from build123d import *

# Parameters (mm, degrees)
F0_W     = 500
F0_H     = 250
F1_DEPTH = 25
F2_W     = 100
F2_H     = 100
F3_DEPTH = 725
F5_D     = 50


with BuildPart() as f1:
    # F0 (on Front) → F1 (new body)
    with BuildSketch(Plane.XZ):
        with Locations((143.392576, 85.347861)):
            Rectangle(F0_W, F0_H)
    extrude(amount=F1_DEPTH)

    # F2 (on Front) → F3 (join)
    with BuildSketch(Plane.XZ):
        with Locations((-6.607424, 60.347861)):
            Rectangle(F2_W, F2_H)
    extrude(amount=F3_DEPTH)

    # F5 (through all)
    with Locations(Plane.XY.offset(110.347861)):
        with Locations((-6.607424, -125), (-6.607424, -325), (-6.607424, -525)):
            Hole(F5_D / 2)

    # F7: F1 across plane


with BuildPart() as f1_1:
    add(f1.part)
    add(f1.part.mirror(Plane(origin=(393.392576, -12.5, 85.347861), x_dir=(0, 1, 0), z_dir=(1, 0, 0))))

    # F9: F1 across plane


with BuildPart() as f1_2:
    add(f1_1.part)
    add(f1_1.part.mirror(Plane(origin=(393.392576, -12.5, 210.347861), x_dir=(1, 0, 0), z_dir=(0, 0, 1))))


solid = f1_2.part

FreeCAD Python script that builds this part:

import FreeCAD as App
import Part
import Sketcher
from FreeCAD import Vector
Q = App.Units.Quantity

doc = App.newDocument("Part")
body = doc.addObject("PartDesign::Body", "Body")

sketch1 = doc.addObject("Sketcher::SketchObject", "Sketch")
body.addObject(sketch1)
sketch1.AttachmentSupport = (doc.XZ_Plane, [""])
sketch1.MapMode = "FlatFace"
sketch1.addGeometry([
    Part.LineSegment(Vector(-107, 210, 0), Vector(-107, -40, 0)),
    Part.LineSegment(Vector(-107, -40, 0), Vector(393, -40, 0)),
    Part.LineSegment(Vector(393, -40, 0), Vector(393, 210, 0)),
    Part.LineSegment(Vector(393, 210, 0), Vector(-107, 210, 0)),
], False)
sketch1.addConstraint([
    Sketcher.Constraint("Coincident", 0, 2, 1, 1),
    Sketcher.Constraint("Coincident", 1, 2, 2, 1),
    Sketcher.Constraint("Coincident", 2, 2, 3, 1),
    Sketcher.Constraint("Coincident", 3, 2, 0, 1),
    Sketcher.Constraint("Vertical", 0),
    Sketcher.Constraint("Horizontal", 1),
    Sketcher.Constraint("Vertical", 2),
    Sketcher.Constraint("Horizontal", 3),
    Sketcher.Constraint("DistanceX", 1, 1, 1, 2, Q("500 mm")),
    Sketcher.Constraint("DistanceY", 0, 2, 0, 1, Q("250 mm")),
    Sketcher.Constraint("DistanceY", 0, 2, -1, 1, Q("39.652139 mm")),
    Sketcher.Constraint("DistanceX", 0, 2, -1, 1, Q("106.607424 mm")),
])
pad1 = doc.addObject("PartDesign::Pad", "Pad")
body.addObject(pad1)
pad1.Profile = sketch1
pad1.Length = 25

sketch2 = doc.addObject("Sketcher::SketchObject", "Sketch001")
body.addObject(sketch2)
sketch2.AttachmentSupport = (doc.XZ_Plane, [""])
sketch2.MapMode = "FlatFace"
sketch2.addGeometry([
    Part.LineSegment(Vector(-57, 110, 0), Vector(-57, 10, 0)),
    Part.LineSegment(Vector(-57, 10, 0), Vector(43, 10, 0)),
    Part.LineSegment(Vector(43, 10, 0), Vector(43, 110, 0)),
    Part.LineSegment(Vector(43, 110, 0), Vector(-57, 110, 0)),
], False)
sketch2.addConstraint([
    Sketcher.Constraint("Coincident", 0, 2, 1, 1),
    Sketcher.Constraint("Coincident", 1, 2, 2, 1),
    Sketcher.Constraint("Coincident", 2, 2, 3, 1),
    Sketcher.Constraint("Coincident", 3, 2, 0, 1),
    Sketcher.Constraint("Vertical", 0),
    Sketcher.Constraint("Horizontal", 1),
    Sketcher.Constraint("Vertical", 2),
    Sketcher.Constraint("Horizontal", 3),
    Sketcher.Constraint("Equal", 3, 0),
    Sketcher.Constraint("DistanceX", 1, 1, 1, 2, Q("100 mm")),
    Sketcher.Constraint("DistanceY", -1, 1, 0, 2, Q("10.347861 mm")),
    Sketcher.Constraint("DistanceX", 0, 2, -1, 1, Q("56.607424 mm")),
])
pad2 = doc.addObject("PartDesign::Pad", "Pad001")
body.addObject(pad2)
pad2.Profile = sketch2
pad2.Length = 725

sketch3 = doc.addObject("Sketcher::SketchObject", "Sketch002")
body.addObject(sketch3)
sketch3.AttachmentSupport = (doc.XY_Plane, [""])
sketch3.MapMode = "FlatFace"
sketch3.AttachmentOffset = App.Placement(Vector(0, 0, 110.347861), App.Rotation())
sketch3.addGeometry([
    Part.Circle(Vector(-7, -125, 0), Vector(0, 0, 1), 25),
    Part.Circle(Vector(-7, -325, 0), Vector(0, 0, 1), 25),
    Part.Circle(Vector(-7, -525, 0), Vector(0, 0, 1), 25),
], False)
sketch3.addConstraint([
    Sketcher.Constraint("Equal", 0, 1),
    Sketcher.Constraint("Equal", 1, 2),
    Sketcher.Constraint("Vertical", 0, 3, 1, 3),
    Sketcher.Constraint("Vertical", 1, 3, 2, 3),
    Sketcher.Constraint("Diameter", 0, Q("50 mm")),
    Sketcher.Constraint("DistanceY", 0, 3, -1, 1, Q("125 mm")),
    Sketcher.Constraint("DistanceY", 1, 3, -1, 1, Q("325 mm")),
    Sketcher.Constraint("DistanceY", 2, 3, -1, 1, Q("525 mm")),
    Sketcher.Constraint("DistanceX", 0, 3, -1, 1, Q("6.607424 mm")),
])
doc.recompute()
hole = doc.addObject("PartDesign::Hole", "Hole")
body.addObject(hole)
hole.Profile = sketch3
hole.ThreadType = "None"
hole.Diameter = 50
hole.DepthType = "ThroughAll"
body2 = doc.addObject("PartDesign::Body", "Body001")
doc.recompute()

body2.BaseFeature = body
doc.recompute()

mirroring = doc.addObject("Part::Mirroring", "Mirroring")
mirroring.Source = body
mirroring.Base = Vector(393.392576, -12.5, 85.347861)
mirroring.Normal = Vector(1, 0, 0)
body3 = doc.addObject("PartDesign::Body", "Body002")
body3.BaseFeature = mirroring
boolean = doc.addObject("PartDesign::Boolean", "Boolean")
body2.addObject(boolean)
boolean.Type = "Fuse"
boolean.addObjects([body3])
doc.recompute()
body4 = doc.addObject("PartDesign::Body", "Body003")
doc.recompute()

body4.BaseFeature = body2
doc.recompute()

mirroring2 = doc.addObject("Part::Mirroring", "Mirroring001")
mirroring2.Source = body2
mirroring2.Base = Vector(393.392576, -12.5, 210.347861)
mirroring2.Normal = Vector(0, 0, 1)
body5 = doc.addObject("PartDesign::Body", "Body004")
body5.BaseFeature = mirroring2
boolean2 = doc.addObject("PartDesign::Boolean", "Boolean001")
body4.addObject(boolean2)
boolean2.Type = "Fuse"
boolean2.addObjects([body5])
doc.recompute()
mirroring.Visibility = False
mirroring2.Visibility = False

doc.recompute()
